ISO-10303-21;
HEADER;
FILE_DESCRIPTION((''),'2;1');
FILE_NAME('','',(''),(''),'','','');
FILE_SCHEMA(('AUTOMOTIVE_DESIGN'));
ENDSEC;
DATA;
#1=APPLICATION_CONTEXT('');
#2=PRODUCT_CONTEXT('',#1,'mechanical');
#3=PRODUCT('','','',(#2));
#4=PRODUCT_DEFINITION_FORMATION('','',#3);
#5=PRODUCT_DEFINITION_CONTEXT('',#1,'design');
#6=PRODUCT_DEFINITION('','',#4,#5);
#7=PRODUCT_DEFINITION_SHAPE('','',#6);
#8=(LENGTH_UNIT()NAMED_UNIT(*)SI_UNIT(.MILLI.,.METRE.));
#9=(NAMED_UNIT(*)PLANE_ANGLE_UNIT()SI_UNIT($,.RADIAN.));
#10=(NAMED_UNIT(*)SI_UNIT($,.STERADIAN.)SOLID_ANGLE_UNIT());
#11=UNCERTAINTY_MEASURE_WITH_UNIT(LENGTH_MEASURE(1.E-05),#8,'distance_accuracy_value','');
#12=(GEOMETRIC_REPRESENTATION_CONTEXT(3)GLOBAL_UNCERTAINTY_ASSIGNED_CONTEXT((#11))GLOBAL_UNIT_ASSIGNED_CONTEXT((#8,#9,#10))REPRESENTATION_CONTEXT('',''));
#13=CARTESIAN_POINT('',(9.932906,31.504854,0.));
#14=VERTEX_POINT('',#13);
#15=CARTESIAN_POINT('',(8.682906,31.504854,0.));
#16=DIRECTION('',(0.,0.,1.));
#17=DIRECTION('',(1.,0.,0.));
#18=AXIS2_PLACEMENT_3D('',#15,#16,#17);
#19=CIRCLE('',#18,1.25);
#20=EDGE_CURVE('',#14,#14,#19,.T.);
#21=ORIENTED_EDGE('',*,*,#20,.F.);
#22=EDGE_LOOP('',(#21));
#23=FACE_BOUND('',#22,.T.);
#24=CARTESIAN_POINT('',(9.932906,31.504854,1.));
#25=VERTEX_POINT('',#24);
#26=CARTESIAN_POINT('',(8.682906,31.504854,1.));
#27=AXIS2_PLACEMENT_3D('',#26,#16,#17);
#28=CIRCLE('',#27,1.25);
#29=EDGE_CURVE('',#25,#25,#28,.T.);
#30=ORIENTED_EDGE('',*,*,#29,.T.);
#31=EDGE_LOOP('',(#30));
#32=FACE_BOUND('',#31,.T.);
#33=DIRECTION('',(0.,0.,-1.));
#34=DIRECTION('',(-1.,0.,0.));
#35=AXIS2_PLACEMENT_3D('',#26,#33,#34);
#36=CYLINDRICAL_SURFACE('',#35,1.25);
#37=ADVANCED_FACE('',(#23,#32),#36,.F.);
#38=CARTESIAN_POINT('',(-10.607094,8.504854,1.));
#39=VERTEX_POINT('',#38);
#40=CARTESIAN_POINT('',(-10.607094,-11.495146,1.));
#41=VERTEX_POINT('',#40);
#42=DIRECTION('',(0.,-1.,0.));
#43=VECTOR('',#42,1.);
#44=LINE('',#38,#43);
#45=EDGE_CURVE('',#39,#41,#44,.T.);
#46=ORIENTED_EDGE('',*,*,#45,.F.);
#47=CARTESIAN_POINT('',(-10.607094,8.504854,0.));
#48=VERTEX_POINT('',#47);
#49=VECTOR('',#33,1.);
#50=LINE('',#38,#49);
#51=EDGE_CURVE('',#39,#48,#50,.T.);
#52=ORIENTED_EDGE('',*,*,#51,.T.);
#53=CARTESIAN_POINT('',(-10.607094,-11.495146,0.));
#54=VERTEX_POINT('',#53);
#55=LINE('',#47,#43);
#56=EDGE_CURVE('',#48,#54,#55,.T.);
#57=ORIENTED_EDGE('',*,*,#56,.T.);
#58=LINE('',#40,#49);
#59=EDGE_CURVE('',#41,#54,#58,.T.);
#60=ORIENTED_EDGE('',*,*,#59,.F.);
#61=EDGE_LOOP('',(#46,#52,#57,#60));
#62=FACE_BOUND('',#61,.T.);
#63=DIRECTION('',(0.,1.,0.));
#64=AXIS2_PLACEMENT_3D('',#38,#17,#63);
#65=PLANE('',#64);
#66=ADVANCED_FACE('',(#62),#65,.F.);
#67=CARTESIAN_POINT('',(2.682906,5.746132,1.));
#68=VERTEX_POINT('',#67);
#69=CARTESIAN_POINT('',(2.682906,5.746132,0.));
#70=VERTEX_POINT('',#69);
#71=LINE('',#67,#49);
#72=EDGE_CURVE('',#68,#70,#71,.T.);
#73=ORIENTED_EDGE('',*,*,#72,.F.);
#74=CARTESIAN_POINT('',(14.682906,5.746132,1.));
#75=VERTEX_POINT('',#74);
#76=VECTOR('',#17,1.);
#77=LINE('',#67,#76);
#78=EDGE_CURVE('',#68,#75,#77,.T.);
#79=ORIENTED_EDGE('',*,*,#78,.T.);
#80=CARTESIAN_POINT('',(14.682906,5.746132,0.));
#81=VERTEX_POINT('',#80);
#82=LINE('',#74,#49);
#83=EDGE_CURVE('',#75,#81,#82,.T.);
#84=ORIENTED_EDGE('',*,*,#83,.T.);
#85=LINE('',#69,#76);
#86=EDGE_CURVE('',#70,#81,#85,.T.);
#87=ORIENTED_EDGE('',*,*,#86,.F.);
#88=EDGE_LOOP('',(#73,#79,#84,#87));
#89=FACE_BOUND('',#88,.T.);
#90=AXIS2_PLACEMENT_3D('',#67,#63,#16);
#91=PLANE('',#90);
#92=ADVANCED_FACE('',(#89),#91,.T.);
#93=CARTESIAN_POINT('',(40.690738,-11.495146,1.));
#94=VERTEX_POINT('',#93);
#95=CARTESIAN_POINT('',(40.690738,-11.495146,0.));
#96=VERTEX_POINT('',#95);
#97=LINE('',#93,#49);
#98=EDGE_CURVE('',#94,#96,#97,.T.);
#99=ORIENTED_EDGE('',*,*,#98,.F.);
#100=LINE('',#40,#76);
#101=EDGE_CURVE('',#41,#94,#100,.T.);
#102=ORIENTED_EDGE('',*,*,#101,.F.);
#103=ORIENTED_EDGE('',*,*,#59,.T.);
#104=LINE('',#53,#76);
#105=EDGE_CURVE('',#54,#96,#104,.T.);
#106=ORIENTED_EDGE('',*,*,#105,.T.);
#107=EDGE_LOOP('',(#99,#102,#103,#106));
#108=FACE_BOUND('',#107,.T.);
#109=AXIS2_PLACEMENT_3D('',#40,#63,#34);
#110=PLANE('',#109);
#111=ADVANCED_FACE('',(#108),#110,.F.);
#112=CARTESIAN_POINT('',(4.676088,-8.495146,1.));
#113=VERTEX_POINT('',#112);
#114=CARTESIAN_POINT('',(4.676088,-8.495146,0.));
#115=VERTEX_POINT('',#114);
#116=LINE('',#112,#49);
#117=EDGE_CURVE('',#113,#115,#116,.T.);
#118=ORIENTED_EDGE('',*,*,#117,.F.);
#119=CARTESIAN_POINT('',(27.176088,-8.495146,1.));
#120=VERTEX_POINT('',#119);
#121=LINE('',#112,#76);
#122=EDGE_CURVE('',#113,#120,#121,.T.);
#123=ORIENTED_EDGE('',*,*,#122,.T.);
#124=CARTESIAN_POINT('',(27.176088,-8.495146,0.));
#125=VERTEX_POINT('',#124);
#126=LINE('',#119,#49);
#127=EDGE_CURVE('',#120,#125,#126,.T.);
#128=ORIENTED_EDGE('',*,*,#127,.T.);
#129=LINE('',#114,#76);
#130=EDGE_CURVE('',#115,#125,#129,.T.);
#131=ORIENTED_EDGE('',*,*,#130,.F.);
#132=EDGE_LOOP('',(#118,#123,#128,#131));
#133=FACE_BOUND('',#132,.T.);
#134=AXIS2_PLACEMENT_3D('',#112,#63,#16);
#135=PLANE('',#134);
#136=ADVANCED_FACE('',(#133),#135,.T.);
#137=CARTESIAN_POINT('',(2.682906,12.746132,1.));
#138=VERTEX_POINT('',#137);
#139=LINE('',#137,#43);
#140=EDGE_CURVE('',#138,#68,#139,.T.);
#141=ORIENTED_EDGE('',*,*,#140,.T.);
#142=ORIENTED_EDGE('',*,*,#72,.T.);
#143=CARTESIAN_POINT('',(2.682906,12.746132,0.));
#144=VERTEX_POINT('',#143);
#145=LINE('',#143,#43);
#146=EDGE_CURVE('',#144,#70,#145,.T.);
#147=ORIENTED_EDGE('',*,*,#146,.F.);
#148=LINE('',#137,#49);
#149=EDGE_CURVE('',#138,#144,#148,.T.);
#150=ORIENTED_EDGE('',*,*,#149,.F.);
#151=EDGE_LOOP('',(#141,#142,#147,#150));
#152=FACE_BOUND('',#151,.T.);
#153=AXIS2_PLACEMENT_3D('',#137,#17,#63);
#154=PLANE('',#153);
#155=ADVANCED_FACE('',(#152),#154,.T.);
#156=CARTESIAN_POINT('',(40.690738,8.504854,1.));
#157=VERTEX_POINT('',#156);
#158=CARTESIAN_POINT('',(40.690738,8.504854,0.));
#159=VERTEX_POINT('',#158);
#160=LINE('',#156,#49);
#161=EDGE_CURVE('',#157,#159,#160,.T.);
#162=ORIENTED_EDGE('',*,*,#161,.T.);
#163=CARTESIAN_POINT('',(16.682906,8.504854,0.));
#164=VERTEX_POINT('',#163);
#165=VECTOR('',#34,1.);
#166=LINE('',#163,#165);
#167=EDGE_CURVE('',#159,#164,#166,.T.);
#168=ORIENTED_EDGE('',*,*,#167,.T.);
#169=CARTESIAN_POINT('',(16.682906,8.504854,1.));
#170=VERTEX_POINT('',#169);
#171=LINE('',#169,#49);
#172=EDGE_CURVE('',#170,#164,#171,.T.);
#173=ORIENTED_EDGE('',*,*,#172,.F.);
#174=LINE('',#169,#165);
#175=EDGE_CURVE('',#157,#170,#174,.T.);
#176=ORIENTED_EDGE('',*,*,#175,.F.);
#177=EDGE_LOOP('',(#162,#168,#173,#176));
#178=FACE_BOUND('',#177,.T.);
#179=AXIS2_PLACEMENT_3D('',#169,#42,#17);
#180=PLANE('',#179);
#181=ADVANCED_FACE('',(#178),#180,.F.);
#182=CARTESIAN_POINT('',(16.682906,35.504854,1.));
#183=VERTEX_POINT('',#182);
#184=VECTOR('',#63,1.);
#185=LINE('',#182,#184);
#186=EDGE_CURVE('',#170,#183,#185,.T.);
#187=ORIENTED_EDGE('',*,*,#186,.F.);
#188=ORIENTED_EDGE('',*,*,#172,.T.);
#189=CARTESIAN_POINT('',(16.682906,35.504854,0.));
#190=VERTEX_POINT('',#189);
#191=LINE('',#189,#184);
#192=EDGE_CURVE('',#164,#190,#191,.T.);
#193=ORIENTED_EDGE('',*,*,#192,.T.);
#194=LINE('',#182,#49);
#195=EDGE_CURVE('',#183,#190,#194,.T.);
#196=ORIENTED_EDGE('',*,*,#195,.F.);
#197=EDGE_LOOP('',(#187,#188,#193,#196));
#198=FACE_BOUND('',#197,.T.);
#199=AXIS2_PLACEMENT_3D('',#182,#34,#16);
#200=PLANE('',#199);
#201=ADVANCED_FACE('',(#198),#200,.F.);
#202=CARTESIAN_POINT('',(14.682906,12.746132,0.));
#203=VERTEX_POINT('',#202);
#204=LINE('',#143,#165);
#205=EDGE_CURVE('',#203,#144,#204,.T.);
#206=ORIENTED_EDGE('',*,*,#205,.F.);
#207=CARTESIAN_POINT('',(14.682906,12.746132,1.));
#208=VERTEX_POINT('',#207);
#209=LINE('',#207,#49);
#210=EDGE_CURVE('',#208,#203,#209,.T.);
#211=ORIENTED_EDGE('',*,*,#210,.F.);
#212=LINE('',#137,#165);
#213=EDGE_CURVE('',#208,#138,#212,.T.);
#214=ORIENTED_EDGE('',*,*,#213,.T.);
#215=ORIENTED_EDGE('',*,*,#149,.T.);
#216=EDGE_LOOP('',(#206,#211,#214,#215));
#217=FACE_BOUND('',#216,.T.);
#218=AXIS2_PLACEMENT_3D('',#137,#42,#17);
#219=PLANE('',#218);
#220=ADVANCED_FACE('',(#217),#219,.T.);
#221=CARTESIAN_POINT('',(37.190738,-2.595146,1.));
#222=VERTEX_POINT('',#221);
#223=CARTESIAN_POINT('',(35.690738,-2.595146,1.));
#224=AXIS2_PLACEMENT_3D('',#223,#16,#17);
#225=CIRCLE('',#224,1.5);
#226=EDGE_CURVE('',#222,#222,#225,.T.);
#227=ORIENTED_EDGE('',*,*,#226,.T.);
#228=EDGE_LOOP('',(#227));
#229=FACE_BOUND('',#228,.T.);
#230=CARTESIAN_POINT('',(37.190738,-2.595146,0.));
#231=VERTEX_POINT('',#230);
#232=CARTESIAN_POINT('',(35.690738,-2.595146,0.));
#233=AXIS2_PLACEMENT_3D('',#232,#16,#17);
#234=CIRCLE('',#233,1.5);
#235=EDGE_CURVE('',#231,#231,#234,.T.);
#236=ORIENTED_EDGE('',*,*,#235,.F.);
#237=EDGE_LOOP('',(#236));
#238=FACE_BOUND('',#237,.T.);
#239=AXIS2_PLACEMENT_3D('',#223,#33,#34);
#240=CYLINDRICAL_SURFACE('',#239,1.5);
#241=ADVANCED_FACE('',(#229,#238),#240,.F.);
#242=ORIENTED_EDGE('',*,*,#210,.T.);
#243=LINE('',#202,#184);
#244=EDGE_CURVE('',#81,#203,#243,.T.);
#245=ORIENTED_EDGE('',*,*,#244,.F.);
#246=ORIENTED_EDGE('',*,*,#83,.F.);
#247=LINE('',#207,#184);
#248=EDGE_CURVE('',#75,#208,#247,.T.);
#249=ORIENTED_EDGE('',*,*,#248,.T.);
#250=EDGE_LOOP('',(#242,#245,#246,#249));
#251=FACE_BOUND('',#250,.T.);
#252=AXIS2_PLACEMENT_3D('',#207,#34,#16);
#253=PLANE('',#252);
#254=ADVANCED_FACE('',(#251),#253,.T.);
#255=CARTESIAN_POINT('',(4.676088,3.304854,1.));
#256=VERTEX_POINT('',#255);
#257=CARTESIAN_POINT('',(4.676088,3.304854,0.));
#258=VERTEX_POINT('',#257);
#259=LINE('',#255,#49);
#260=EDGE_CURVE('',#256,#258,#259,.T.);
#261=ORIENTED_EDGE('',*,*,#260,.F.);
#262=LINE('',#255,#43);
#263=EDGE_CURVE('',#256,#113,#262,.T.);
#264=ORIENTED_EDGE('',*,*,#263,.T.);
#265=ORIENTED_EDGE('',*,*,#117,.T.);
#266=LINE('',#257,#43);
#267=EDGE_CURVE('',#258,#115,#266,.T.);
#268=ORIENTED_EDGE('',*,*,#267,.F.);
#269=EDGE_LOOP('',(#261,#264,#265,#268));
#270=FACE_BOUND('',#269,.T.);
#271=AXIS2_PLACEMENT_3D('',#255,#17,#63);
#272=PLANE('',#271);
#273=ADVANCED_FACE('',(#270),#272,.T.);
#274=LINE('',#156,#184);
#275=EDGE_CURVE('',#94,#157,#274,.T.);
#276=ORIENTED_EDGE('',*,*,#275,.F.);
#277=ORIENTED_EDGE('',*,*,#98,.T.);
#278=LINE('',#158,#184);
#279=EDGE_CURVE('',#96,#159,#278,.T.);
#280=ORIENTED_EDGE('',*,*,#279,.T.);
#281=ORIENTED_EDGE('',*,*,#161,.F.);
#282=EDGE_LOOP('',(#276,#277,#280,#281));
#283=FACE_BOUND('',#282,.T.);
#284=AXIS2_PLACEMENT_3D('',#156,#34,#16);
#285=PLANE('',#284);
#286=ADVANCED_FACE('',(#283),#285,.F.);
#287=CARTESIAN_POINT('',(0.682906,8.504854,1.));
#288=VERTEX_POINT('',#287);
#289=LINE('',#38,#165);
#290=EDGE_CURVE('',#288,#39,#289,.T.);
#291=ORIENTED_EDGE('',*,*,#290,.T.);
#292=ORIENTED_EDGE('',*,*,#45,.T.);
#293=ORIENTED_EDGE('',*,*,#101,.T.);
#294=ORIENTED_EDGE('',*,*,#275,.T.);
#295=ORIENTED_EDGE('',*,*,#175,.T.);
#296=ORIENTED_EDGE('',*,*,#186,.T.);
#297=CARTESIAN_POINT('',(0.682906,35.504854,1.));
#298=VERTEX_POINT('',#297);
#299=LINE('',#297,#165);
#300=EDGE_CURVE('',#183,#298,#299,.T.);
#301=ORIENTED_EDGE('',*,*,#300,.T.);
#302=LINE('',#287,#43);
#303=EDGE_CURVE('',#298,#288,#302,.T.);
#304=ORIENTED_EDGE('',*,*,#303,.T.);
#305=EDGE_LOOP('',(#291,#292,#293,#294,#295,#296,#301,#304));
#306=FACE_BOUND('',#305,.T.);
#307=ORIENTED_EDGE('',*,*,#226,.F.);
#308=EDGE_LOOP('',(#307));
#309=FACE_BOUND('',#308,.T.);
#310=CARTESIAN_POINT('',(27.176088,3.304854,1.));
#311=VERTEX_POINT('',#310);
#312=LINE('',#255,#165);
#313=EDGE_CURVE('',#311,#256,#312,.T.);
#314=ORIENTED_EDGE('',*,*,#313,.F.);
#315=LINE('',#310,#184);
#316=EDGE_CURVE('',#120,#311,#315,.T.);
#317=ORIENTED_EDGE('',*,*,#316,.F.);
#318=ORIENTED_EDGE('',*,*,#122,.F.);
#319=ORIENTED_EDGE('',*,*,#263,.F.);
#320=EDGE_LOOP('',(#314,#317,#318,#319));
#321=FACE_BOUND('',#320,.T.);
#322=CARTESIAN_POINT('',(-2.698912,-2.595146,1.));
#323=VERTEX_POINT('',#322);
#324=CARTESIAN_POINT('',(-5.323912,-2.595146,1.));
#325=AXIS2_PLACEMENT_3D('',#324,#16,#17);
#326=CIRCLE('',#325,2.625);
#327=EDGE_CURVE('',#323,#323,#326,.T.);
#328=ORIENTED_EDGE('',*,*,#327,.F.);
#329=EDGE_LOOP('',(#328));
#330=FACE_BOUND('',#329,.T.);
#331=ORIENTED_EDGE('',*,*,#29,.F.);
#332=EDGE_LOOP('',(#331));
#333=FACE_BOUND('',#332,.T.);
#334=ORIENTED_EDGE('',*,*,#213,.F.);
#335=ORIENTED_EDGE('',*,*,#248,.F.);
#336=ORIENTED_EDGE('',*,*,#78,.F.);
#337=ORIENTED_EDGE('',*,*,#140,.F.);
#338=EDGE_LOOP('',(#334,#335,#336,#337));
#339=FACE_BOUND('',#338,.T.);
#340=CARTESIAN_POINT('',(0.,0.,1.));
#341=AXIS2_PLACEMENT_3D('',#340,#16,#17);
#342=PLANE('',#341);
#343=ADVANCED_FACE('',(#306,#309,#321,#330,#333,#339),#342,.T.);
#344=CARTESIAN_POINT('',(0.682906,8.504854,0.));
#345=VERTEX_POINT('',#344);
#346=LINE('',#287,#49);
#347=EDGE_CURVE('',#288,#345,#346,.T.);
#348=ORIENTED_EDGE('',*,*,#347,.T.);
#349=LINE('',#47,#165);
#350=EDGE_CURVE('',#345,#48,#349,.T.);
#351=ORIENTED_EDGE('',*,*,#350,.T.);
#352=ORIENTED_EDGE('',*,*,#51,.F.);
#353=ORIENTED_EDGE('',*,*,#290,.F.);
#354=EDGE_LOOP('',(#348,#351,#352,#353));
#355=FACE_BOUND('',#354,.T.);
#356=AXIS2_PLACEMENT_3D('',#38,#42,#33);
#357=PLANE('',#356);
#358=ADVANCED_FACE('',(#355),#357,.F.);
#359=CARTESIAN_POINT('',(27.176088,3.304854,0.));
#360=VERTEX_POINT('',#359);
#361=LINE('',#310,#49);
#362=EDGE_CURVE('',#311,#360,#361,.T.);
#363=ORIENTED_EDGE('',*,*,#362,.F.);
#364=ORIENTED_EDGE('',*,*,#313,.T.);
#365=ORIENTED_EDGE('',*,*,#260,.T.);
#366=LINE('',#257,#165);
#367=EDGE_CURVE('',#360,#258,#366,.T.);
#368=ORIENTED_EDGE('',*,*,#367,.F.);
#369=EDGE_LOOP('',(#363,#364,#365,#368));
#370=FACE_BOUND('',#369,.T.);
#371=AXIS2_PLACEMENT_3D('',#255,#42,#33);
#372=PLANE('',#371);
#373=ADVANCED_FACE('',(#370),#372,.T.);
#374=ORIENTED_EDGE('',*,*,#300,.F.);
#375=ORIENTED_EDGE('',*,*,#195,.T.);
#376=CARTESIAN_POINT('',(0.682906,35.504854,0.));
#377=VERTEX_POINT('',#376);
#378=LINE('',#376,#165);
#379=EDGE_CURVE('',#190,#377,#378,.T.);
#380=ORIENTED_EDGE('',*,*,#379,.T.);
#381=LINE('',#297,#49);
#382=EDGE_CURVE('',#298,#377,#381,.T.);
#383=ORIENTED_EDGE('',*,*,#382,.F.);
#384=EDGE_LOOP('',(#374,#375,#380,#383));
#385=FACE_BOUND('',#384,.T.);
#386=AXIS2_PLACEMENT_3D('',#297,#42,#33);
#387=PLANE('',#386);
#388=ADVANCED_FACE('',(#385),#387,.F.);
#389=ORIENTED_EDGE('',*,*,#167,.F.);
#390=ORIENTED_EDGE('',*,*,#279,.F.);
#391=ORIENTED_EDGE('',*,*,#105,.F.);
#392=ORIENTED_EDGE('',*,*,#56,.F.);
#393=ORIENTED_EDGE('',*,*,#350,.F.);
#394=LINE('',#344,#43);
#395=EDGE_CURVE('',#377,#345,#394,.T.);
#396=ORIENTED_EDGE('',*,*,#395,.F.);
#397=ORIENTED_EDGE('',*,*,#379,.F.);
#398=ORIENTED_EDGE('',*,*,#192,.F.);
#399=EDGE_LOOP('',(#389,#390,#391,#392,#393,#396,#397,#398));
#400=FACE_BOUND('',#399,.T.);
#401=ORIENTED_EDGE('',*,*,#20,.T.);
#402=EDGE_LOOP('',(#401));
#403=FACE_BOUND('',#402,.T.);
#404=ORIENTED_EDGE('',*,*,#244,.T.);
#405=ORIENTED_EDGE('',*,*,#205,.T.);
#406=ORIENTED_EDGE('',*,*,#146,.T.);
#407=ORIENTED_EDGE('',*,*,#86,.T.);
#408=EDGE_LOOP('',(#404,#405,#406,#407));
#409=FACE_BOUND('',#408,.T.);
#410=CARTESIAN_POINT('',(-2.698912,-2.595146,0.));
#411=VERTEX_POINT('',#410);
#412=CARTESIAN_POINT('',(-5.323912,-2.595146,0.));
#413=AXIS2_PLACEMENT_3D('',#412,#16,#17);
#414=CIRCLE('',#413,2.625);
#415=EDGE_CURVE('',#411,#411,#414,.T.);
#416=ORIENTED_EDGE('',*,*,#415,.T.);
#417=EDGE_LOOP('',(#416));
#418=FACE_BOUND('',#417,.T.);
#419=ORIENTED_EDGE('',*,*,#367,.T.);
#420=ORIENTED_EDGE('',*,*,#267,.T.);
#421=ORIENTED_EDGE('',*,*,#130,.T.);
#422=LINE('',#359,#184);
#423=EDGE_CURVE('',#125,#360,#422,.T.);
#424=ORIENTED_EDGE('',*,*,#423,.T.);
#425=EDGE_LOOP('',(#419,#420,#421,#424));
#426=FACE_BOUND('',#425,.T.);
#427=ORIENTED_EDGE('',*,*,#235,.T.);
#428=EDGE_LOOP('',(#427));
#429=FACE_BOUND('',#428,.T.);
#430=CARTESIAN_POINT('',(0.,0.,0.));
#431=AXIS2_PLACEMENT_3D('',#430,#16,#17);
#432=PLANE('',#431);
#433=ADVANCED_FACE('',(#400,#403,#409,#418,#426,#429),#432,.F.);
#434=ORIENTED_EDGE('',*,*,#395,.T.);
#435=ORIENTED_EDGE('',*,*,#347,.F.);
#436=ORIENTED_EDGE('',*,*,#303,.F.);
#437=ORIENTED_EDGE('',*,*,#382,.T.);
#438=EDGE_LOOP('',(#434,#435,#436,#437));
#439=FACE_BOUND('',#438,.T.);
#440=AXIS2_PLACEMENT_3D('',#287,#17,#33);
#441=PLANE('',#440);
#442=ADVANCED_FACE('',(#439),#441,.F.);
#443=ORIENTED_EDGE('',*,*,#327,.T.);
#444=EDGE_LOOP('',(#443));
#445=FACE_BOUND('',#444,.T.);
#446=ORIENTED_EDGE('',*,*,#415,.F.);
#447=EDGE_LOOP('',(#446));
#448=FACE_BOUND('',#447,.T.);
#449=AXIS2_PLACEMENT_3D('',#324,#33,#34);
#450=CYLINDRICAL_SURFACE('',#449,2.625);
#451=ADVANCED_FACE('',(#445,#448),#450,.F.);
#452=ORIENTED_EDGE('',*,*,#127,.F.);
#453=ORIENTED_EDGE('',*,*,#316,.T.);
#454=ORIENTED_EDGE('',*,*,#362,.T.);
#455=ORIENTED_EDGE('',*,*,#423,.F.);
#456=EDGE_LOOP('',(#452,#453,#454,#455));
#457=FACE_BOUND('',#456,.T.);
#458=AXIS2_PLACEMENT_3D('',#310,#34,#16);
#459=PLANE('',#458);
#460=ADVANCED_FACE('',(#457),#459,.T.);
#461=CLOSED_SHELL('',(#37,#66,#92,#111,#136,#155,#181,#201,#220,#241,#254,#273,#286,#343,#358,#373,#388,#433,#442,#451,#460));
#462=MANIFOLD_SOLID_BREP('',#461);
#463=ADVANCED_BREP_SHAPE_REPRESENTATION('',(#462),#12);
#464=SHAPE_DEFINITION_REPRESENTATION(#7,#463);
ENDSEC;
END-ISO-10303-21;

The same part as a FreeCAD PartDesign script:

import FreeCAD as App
import Part
import Sketcher

V = App.Vector


def add_polygon(sketch, points):
    """Adds a closed chain of lines whose ends are joined by coincident constraints."""
    first, n = sketch.GeometryCount, len(points)
    for a, b in zip(points, points[1:] + points[:1]):
        sketch.addGeometry(Part.LineSegment(App.Vector(*a, 0), App.Vector(*b, 0)), False)
    for i in range(n):
        sketch.addConstraint(Sketcher.Constraint("Coincident", first + i, 2, first + (i + 1) % n, 1))

doc = App.newDocument("Part")
body = doc.addObject("PartDesign::Body", "Body")

# Sketch on XY plane
sketch1 = doc.addObject("Sketcher::SketchObject", "Sketch")
body.addObject(sketch1)
sketch1.AttachmentSupport = (doc.XY_Plane, [""])
sketch1.MapMode = "FlatFace"
add_polygon(sketch1, [(0.682906, 35.504854), (0.682906, 8.504854), (-10.607094, 8.504854), (-10.607094, -11.495146), (40.690738, -11.495146), (40.690738, 8.504854), (16.682906, 8.504854), (16.682906, 35.504854)])  # lines 0-7
sketch1.addGeometry(Part.Circle(V(35.690738, -2.595146, 0), V(0, 0, 1), 1.5), False)  # 8
add_polygon(sketch1, [(4.676088, -8.495146), (4.676088, 3.304854), (27.176088, 3.304854), (27.176088, -8.495146)])  # lines 9-12
sketch1.addGeometry(Part.Circle(V(-5.323912, -2.595146, 0), V(0, 0, 1), 2.625), False)  # 13
add_polygon(sketch1, [(2.682906, 5.746132), (2.682906, 12.746132), (14.682906, 12.746132), (14.682906, 5.746132)])  # lines 14-17
sketch1.addGeometry(Part.Circle(V(8.682906, 31.504854, 0), V(0, 0, 1), 1.25), False)  # 18
sketch1.addConstraint([
    Sketcher.Constraint("Vertical", 0),
    Sketcher.Constraint("Horizontal", 1),
    Sketcher.Constraint("Vertical", 2),
    Sketcher.Constraint("Horizontal", 3),
    Sketcher.Constraint("Vertical", 4),
    Sketcher.Constraint("Horizontal", 5),
    Sketcher.Constraint("Vertical", 6),
    Sketcher.Constraint("Horizontal", 7),
    Sketcher.Constraint("Vertical", 9),
    Sketcher.Constraint("Horizontal", 10),
    Sketcher.Constraint("Vertical", 11),
    Sketcher.Constraint("Horizontal", 12),
    Sketcher.Constraint("Vertical", 14),
    Sketcher.Constraint("Horizontal", 15),
    Sketcher.Constraint("Vertical", 16),
    Sketcher.Constraint("Horizontal", 17),
    Sketcher.Constraint("Horizontal", 8, 3, 13, 3),
    Sketcher.Constraint("Horizontal", 1, 2, 4, 2),
    Sketcher.Constraint("Diameter", 8, 3.0),
    Sketcher.Constraint("Diameter", 18, 2.5),
    Sketcher.Constraint("Diameter", 13, 5.25),
    Sketcher.Constraint("DistanceX", 7, 2, 7, 1, 16.0),
    Sketcher.Constraint("DistanceX", 15, 1, 15, 2, 12.0),
    Sketcher.Constraint("DistanceY", 0, 2, 0, 1, 27.0),
    Sketcher.Constraint("DistanceY", 2, 2, 2, 1, 20.0),
    Sketcher.Constraint("DistanceY", 14, 1, 14, 2, 7.0),
    Sketcher.Constraint("DistanceX", 10, 1, 10, 2, 22.5),
    Sketcher.Constraint("DistanceY", 9, 1, 9, 2, 11.8),
    Sketcher.Constraint("DistanceX", 0, 2, 18, 3, 8.0),
    Sketcher.Constraint("DistanceY", 0, 2, 18, 3, 23.0),
    Sketcher.Constraint("DistanceX", 8, 3, 3, 2, 5.0),
    Sketcher.Constraint("DistanceX", 13, 3, 9, 2, 10.0),
    Sketcher.Constraint("DistanceY", 3, 2, 11, 2, 3.0),
    Sketcher.Constraint("DistanceX", 0, 2, 14, 2, 2.0),
    Sketcher.Constraint("DistanceX", 1, 2, 1, 1, 11.29),
    Sketcher.Constraint("DistanceY", 13, 3, 18, 3, 34.1),
    Sketcher.Constraint("DistanceX", 3, 1, 3, 2, 51.297831),
    Sketcher.Constraint("DistanceX", 13, 3, -1, 1, 5.323912),
    Sketcher.Constraint("DistanceX", 13, 3, 8, 3, 41.01465),
    Sketcher.Constraint("DistanceY", 0, 2, 14, 2, 4.241278),
    Sketcher.Constraint("DistanceY", 8, 3, -1, 1, 2.595146),
])
pad1 = doc.addObject("PartDesign::Pad", "Pad")
body.addObject(pad1)
pad1.Profile = sketch1
pad1.Length = 1

doc.recompute()
